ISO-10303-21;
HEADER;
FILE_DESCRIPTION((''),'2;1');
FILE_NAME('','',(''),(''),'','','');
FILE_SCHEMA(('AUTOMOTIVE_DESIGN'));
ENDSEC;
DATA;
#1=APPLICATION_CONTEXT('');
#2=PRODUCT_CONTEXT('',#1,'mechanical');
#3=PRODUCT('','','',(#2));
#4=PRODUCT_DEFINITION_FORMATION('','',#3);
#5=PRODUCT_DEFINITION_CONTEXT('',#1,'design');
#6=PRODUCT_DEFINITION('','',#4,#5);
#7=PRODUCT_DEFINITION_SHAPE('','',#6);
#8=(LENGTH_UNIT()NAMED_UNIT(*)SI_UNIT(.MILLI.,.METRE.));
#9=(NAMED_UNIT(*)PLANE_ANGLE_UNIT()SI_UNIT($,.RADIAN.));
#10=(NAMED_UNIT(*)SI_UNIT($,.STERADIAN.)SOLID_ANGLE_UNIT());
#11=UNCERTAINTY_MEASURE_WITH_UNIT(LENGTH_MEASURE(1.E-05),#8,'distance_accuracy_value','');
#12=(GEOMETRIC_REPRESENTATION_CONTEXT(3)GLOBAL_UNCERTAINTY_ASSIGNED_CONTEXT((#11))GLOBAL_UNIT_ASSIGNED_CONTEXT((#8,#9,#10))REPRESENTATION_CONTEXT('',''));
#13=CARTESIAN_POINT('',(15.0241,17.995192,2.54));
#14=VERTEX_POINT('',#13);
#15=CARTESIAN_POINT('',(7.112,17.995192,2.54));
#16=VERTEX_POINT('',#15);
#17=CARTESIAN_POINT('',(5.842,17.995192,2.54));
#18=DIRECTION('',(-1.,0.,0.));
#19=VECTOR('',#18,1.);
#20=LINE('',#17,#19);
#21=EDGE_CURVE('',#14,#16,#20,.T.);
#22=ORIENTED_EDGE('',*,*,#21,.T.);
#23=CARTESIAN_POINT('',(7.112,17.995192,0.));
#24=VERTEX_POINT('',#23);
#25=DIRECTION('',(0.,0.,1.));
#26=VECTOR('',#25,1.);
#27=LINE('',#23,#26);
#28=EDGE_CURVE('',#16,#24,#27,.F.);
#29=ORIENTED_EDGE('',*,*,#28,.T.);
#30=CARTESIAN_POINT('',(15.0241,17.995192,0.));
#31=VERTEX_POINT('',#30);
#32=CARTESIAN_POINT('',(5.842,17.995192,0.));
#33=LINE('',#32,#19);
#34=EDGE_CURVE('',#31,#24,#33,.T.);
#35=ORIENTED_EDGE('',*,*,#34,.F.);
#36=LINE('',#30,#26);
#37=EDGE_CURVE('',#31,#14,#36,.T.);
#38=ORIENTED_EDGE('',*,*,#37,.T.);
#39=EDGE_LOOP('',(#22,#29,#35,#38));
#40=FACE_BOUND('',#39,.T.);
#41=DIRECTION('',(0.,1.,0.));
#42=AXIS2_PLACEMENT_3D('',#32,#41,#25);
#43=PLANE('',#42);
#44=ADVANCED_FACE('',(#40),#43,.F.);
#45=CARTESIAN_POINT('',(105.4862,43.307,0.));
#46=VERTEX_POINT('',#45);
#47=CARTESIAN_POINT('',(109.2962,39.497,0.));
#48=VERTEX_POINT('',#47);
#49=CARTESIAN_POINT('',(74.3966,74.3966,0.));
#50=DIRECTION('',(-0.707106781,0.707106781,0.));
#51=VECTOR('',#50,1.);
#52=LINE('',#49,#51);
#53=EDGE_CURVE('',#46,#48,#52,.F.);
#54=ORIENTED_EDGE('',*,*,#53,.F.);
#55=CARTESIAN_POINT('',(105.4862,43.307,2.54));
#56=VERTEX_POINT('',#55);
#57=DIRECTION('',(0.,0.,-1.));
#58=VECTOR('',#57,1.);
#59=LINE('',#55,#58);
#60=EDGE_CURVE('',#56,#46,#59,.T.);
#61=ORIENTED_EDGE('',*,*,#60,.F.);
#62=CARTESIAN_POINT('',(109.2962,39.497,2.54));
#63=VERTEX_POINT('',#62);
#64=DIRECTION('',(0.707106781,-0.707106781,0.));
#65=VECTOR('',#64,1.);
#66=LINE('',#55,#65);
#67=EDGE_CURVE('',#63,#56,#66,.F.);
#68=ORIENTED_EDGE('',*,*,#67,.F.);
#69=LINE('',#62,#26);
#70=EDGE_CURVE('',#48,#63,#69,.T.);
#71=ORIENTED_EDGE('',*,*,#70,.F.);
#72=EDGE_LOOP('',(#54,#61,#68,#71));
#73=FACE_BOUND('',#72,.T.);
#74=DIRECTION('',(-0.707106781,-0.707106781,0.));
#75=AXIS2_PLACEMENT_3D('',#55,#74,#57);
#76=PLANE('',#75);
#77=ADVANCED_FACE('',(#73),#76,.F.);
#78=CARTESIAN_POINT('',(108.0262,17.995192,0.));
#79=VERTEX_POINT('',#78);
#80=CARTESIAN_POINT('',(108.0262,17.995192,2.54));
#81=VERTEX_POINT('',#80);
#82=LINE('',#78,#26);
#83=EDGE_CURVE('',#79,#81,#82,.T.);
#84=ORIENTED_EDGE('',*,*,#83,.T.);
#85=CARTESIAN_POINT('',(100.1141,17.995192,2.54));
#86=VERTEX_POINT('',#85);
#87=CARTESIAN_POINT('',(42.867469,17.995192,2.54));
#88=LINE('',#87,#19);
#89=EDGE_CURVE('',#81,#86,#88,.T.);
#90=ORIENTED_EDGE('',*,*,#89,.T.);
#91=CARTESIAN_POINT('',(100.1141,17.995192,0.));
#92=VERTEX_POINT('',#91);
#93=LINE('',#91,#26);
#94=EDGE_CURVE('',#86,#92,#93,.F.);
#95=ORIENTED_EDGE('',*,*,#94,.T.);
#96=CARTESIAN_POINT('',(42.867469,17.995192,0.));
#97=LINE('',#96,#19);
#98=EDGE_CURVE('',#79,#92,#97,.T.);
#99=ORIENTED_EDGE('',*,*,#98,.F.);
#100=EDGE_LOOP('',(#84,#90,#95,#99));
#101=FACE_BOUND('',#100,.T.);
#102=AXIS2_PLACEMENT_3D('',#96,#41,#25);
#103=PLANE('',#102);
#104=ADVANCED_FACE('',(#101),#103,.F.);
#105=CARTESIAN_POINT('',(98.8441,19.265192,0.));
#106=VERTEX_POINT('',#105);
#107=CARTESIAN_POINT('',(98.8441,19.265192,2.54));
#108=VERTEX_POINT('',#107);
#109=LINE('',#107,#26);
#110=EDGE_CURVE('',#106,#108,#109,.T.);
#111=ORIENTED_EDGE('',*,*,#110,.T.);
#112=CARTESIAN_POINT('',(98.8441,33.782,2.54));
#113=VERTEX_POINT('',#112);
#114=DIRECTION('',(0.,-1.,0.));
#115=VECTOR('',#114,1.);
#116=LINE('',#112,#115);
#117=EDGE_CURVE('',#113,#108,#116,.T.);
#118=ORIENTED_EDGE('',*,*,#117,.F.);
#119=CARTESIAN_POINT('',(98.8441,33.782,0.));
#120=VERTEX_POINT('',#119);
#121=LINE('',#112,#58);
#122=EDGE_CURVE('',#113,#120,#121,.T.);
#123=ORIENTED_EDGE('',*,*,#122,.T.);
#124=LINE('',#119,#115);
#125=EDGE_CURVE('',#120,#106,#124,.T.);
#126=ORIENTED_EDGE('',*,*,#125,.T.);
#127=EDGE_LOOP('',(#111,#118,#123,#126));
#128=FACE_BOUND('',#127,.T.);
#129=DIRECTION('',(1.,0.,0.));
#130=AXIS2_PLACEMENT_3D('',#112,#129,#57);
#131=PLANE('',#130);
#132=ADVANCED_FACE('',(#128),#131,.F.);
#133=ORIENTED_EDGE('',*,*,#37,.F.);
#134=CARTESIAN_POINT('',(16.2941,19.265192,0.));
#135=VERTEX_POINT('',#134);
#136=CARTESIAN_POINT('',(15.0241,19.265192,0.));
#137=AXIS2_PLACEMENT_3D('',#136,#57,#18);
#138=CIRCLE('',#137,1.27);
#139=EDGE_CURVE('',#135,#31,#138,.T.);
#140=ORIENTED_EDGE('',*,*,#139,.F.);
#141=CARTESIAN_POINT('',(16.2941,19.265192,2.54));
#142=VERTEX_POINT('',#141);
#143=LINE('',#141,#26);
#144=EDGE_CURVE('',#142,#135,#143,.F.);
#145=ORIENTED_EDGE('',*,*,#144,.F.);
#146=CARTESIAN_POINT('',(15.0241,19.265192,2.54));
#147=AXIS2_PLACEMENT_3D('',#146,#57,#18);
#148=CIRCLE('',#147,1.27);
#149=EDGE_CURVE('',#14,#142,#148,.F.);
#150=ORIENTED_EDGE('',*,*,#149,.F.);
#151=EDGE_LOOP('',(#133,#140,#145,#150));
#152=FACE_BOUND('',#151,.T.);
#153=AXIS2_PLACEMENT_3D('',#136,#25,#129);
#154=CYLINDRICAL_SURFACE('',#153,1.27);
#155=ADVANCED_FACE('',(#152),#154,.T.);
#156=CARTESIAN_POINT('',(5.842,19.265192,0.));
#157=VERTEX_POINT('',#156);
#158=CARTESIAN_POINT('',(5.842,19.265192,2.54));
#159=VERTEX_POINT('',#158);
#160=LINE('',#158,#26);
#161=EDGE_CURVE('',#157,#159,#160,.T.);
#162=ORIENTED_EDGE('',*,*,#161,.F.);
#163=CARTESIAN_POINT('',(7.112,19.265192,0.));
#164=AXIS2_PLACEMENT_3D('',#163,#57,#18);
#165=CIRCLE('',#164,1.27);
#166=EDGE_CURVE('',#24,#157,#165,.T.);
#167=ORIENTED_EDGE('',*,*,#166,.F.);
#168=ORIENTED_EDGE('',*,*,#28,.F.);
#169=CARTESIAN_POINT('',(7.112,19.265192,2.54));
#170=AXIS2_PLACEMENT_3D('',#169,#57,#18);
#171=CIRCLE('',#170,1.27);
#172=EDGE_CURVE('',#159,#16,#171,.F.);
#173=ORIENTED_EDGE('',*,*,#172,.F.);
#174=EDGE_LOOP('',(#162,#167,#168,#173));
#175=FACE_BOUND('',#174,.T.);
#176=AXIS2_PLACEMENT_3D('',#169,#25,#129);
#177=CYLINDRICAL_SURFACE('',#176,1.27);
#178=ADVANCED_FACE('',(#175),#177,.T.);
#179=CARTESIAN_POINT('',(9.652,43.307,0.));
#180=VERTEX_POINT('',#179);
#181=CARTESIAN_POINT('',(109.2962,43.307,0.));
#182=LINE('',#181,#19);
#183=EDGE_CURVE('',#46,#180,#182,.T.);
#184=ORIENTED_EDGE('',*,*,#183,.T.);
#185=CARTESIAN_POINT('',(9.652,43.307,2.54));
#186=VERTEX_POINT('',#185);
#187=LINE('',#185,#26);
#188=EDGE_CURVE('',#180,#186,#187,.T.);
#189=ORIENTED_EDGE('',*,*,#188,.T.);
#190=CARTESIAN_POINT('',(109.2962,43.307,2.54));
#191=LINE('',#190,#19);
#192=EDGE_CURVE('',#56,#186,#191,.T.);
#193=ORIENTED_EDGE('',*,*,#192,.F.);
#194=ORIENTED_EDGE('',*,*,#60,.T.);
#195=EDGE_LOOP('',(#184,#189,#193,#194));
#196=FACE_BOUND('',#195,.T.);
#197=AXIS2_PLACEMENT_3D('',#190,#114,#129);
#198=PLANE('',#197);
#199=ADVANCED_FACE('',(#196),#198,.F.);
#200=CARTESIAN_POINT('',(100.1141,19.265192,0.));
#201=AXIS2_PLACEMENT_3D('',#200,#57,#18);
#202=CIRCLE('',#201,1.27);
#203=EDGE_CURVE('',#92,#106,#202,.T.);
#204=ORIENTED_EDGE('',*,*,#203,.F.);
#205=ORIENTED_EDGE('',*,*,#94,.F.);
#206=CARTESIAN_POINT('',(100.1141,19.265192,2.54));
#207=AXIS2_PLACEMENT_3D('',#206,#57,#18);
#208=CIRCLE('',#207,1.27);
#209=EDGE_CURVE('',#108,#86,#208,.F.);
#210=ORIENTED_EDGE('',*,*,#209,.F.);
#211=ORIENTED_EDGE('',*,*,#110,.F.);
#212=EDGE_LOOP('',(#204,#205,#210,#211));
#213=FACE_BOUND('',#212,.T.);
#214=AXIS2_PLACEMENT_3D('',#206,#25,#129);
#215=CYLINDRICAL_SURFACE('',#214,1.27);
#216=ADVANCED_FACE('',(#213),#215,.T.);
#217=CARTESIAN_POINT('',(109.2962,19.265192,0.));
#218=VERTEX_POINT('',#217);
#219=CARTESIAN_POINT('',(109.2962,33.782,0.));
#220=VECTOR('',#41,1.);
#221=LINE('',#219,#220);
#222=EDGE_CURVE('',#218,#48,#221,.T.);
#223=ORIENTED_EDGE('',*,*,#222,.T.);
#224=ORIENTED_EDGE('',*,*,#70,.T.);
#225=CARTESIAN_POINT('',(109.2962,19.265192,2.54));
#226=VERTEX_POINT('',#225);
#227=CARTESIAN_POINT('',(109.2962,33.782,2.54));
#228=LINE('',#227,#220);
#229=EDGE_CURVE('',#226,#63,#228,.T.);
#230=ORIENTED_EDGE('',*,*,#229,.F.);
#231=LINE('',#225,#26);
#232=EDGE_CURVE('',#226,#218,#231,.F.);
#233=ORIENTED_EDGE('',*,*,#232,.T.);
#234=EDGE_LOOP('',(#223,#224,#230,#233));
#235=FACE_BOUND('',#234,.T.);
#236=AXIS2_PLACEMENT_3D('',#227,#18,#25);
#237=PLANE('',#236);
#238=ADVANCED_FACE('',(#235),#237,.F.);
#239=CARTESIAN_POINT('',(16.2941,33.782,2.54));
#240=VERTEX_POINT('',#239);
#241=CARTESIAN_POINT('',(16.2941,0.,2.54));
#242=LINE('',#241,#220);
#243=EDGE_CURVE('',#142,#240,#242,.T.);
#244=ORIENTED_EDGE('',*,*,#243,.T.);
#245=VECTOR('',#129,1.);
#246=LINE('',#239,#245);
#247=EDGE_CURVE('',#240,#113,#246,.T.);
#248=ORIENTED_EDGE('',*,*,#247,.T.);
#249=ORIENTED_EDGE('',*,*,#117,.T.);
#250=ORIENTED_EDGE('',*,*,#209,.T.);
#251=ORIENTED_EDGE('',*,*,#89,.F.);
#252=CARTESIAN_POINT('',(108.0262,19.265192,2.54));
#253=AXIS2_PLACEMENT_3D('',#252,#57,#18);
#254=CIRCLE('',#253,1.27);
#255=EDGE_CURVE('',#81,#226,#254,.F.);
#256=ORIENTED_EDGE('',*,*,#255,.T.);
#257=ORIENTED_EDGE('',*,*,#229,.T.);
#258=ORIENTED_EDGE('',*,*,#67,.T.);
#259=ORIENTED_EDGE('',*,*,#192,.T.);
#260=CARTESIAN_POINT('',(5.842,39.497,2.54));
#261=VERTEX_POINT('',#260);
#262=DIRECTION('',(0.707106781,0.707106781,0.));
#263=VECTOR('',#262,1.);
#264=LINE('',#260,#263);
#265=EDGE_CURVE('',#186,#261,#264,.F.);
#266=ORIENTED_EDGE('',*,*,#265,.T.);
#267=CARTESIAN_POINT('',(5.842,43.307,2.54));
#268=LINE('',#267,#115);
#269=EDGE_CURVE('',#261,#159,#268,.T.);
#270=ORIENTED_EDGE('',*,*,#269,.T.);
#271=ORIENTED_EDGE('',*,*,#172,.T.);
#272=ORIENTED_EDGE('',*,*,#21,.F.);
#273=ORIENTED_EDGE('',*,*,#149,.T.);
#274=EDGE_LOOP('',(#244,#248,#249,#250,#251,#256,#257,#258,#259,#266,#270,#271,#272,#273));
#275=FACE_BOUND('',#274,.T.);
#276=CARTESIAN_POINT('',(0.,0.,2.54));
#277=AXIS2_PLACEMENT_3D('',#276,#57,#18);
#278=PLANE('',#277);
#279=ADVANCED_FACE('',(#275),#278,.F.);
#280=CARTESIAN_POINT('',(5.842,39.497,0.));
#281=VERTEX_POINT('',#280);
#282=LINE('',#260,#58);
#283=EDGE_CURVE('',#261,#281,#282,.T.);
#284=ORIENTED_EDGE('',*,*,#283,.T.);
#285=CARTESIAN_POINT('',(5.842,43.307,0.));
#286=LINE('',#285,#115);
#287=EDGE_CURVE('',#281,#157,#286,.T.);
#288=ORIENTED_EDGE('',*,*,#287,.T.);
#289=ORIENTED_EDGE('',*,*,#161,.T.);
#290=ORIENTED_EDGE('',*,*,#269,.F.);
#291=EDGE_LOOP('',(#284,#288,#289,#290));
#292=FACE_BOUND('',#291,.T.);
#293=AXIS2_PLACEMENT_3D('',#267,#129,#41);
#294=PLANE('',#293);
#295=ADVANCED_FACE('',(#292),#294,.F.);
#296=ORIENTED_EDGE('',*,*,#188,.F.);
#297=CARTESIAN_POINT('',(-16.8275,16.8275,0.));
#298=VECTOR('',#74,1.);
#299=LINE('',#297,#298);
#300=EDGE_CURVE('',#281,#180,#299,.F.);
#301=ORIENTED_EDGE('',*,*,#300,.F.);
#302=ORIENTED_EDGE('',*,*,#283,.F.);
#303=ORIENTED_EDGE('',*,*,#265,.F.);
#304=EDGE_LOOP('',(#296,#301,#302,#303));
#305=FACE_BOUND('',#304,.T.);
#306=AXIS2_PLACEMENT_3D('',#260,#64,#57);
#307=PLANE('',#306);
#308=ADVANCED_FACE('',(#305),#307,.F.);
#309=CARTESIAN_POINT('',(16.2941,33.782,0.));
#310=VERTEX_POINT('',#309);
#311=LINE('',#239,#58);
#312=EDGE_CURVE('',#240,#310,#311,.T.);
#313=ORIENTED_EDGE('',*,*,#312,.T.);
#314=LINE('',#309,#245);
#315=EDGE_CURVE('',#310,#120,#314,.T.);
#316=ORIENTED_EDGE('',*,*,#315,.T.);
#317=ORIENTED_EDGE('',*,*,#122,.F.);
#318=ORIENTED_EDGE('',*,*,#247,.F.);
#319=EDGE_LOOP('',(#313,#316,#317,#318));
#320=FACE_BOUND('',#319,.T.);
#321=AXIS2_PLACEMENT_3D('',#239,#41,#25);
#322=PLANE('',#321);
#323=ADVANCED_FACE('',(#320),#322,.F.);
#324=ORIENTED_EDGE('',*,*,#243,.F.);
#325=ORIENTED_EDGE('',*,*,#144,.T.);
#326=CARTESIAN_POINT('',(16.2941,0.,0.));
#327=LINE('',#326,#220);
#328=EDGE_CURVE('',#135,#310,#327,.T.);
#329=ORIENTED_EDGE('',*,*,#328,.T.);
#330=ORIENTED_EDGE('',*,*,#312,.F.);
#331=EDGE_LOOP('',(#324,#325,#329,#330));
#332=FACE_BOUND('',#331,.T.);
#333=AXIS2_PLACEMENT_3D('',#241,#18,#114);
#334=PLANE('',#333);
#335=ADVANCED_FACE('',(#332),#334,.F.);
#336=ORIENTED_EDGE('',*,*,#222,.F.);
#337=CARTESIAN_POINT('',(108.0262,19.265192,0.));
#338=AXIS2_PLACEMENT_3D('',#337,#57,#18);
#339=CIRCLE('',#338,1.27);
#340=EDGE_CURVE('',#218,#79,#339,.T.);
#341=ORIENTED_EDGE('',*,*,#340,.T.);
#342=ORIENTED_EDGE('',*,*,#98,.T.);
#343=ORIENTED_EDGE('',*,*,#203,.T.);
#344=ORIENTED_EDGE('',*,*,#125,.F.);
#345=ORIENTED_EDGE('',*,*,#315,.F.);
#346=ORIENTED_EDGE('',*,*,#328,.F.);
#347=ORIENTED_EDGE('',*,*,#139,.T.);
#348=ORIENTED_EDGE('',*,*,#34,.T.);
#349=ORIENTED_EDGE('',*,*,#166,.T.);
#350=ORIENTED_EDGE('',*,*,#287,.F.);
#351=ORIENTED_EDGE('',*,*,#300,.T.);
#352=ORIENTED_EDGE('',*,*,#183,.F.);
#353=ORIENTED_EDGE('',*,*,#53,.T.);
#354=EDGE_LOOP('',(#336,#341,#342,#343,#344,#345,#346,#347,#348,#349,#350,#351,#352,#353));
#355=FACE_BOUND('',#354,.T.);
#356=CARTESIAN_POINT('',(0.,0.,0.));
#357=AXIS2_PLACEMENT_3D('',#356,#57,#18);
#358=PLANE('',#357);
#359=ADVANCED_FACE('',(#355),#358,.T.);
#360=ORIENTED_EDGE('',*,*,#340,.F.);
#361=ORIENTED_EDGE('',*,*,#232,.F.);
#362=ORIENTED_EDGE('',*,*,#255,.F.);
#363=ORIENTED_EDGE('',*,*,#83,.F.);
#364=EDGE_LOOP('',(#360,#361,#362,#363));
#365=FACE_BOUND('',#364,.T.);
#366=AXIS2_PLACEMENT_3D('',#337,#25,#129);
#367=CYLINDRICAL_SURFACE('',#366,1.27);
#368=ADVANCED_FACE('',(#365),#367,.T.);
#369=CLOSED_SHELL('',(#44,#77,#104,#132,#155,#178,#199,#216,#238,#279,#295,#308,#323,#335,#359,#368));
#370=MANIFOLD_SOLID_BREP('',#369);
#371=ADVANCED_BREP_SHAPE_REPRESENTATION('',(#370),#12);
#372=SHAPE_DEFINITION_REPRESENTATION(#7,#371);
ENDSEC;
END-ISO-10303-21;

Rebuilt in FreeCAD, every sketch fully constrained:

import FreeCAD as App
import Part
import Sketcher
from FreeCAD import Vector
Q = App.Units.Quantity


def edges_at(feature, points):
    """Names of the edges that pass closest to the given points."""
    edges = feature.Shape.Edges
    near = lambda p: min(range(len(edges)), key=lambda i: edges[i].distToShape(Part.Vertex(*p))[0])
    return sorted({f"Edge{near(p) + 1}" for p in points})


def add_polygon(sketch, points):
    """Adds a closed chain of lines whose ends are joined by coincident constraints."""
    first, n = sketch.GeometryCount, len(points)
    for a, b in zip(points, points[1:] + points[:1]):
        sketch.addGeometry(Part.LineSegment(App.Vector(*a, 0), App.Vector(*b, 0)), False)
    for i in range(n):
        sketch.addConstraint(Sketcher.Constraint("Coincident", first + i, 2, first + (i + 1) % n, 1))

doc = App.newDocument("Part")
params = doc.addObject("Spreadsheet::Sheet", "Params")
for row, (alias, value) in enumerate([
    ("sketch1_width", "3.25 in"),
    ("sketch1_width2", "0.23 in"),
    ("sketch1_height", "1.33 in"),
    ("sketch1_height2", "0.11 in"),
    ("sketch1_width3", "4.073 in"),
    ("pad1_length", "0.1 in"),
    ("chamfer_size", "0.15 in"),
    ("sketch2_width", "0.23 in"),
    ("sketch3_width", "0.23 in"),
    ("fillet_radius", "0.05 in"),
], start=1):
    params.set(f"A{row}", alias)
    params.set(f"B{row}", "=" + value)
    params.setAlias(f"B{row}", alias)

body = doc.addObject("PartDesign::Body", "Body")

sketch1 = body.newObject("Sketcher::SketchObject", "Sketch")
sketch1.AttachmentSupport = (doc.getObject("XY_Plane"), [""])
sketch1.MapMode = "FlatFace"
add_polygon(sketch1, [(5.8, 0), (16.3, 0), (16.3, 33.8), (98.8, 33.8), (98.8, 0), (109.3, 0), (109.3, 2.8), (115.1, 2.8), (115.1, 33.8), (109.3, 33.8), (109.3, 43.3), (5.8, 43.3), (5.8, 33.8), (0, 33.8), (0, 2.8), (5.8, 2.8)])
sketch1.addConstraint(Sketcher.Constraint("Horizontal", 0))
sketch1.addConstraint(Sketcher.Constraint("Vertical", 1))
sketch1.addConstraint(Sketcher.Constraint("Horizontal", 2))
sketch1.addConstraint(Sketcher.Constraint("Vertical", 3))
sketch1.addConstraint(Sketcher.Constraint("Horizontal", 4))
sketch1.addConstraint(Sketcher.Constraint("Vertical", 5))
sketch1.addConstraint(Sketcher.Constraint("Horizontal", 6))
sketch1.addConstraint(Sketcher.Constraint("Vertical", 7))
sketch1.addConstraint(Sketcher.Constraint("Horizontal", 8))
sketch1.addConstraint(Sketcher.Constraint("Vertical", 9))
sketch1.addConstraint(Sketcher.Constraint("Horizontal", 10))
sketch1.addConstraint(Sketcher.Constraint("Vertical", 11))
sketch1.addConstraint(Sketcher.Constraint("Horizontal", 12))
sketch1.addConstraint(Sketcher.Constraint("Vertical", 13))
sketch1.addConstraint(Sketcher.Constraint("Horizontal", 14))
sketch1.addConstraint(Sketcher.Constraint("Vertical", 15))
sketch1.addConstraint(Sketcher.Constraint("PointOnObject", 0, 2, -1))
sketch1.addConstraint(Sketcher.Constraint("PointOnObject", 3, 2, -1))
sketch1.addConstraint(Sketcher.Constraint("PointOnObject", 12, 2, -2))
sketch1.addConstraint(Sketcher.Constraint("Horizontal", 2, 2, 7, 2))
sketch1.addConstraint(Sketcher.Constraint("Horizontal", 8, 2, 11, 2))
sketch1.addConstraint(Sketcher.Constraint("Horizontal", 6, 2, 13, 2))
sketch1.addConstraint(Sketcher.Constraint("Vertical", 5, 2, 8, 2))
sketch1.addConstraint(Sketcher.Constraint("Vertical", 11, 2, 14, 2))
sketch1.addConstraint(Sketcher.Constraint("Equal", 0, 4))
sketch1.addConstraint(Sketcher.Constraint("Equal", 8, 12))
sketch1.addConstraint(Sketcher.Constraint("DistanceX", 2, 1, 2, 2, Q("3.25 in")))
sketch1.addConstraint(Sketcher.Constraint("DistanceX", 6, 1, 6, 2, Q("0.23 in")))
sketch1.addConstraint(Sketcher.Constraint("DistanceY", 1, 1, 1, 2, Q("1.33 in")))
sketch1.addConstraint(Sketcher.Constraint("DistanceY", 5, 1, 5, 2, Q("0.11 in")))
sketch1.addConstraint(Sketcher.Constraint("DistanceX", 10, 2, 10, 1, Q("4.073 in")))
sketch1.addConstraint(Sketcher.Constraint("DistanceY", 9, 1, 9, 2, Q("0.375 in")))
sketch1.setExpression("Constraints[42]", "Params.sketch1_width")
sketch1.setExpression("Constraints[43]", "Params.sketch1_width2")
sketch1.setExpression("Constraints[44]", "Params.sketch1_height")
sketch1.setExpression("Constraints[45]", "Params.sketch1_height2")
sketch1.setExpression("Constraints[46]", "Params.sketch1_width3")
pad1 = body.newObject("PartDesign::Pad", "Pad")
pad1.Profile = sketch1
pad1.setExpression("Length", "Params.pad1_length")
doc.recompute()

chamfer = body.newObject("PartDesign::Chamfer", "Chamfer")
chamfer.Base = (pad1, edges_at(pad1, [(5.842, 43.307, 1.27), (109.296, 43.307, 1.27)]))
chamfer.setExpression("Size", "Params.chamfer_size")

sketch2 = body.newObject("Sketcher::SketchObject", "Sketch001")
sketch2.AttachmentSupport = (doc.getObject("XY_Plane"), [""])
sketch2.MapMode = "FlatFace"
sketch2.AttachmentOffset = App.Placement(Vector(0, 0, 0.1 * 25.4), App.Rotation())
add_polygon(sketch2, [(6, 34), (0, 34), (0, -3), (16, -3), (16, 18), (6, 18)])
sketch2.addConstraint(Sketcher.Constraint("Horizontal", 0))
sketch2.addConstraint(Sketcher.Constraint("Vertical", 1))
sketch2.addConstraint(Sketcher.Constraint("Horizontal", 2))
sketch2.addConstraint(Sketcher.Constraint("Vertical", 3))
sketch2.addConstraint(Sketcher.Constraint("Horizontal", 4))
sketch2.addConstraint(Sketcher.Constraint("Vertical", 5))
sketch2.addConstraint(Sketcher.Constraint("PointOnObject", 0, 2, -2))
sketch2.addConstraint(Sketcher.Constraint("DistanceX", 0, 2, 0, 1, Q("0.23 in")))
sketch2.addConstraint(Sketcher.Constraint("DistanceY", -1, 1, 0, 2, Q("1.33 in")))
sketch2.addConstraint(Sketcher.Constraint("DistanceX", 2, 1, 2, 2, Q("0.6415 in")))
sketch2.addConstraint(Sketcher.Constraint("DistanceY", 1, 2, 1, 1, 36.880793))
sketch2.addConstraint(Sketcher.Constraint("DistanceY", 3, 1, 3, 2, 21.093985))
sketch2.setExpression("Constraints[13]", "Params.sketch2_width")
pocket1 = body.newObject("PartDesign::Pocket", "Pocket")
pocket1.Profile = sketch2
pocket1.Type = "ThroughAll"

sketch3 = body.newObject("Sketcher::SketchObject", "Sketch002")
sketch3.AttachmentSupport = (doc.getObject("XY_Plane"), [""])
sketch3.MapMode = "FlatFace"
sketch3.AttachmentOffset = App.Placement(Vector(0, 0, 0.1 * 25.4), App.Rotation())
add_polygon(sketch3, [(115, 34), (109, 34), (109, 18), (43, 18), (99, 0), (115, -2)])
sketch3.addConstraint(Sketcher.Constraint("Horizontal", 0))
sketch3.addConstraint(Sketcher.Constraint("Vertical", 1))
sketch3.addConstraint(Sketcher.Constraint("Horizontal", 2))
sketch3.addConstraint(Sketcher.Constraint("Vertical", 5))
sketch3.addConstraint(Sketcher.Constraint("PointOnObject", 3, 2, -1))
sketch3.addConstraint(Sketcher.Constraint("DistanceX", 0, 2, 0, 1, Q("0.23 in")))
sketch3.addConstraint(Sketcher.Constraint("DistanceY", -1, 1, 0, 2, Q("1.33 in")))
sketch3.addConstraint(Sketcher.Constraint("DistanceX", -1, 1, 0, 2, Q("4.303 in")))
sketch3.addConstraint(Sketcher.Constraint("DistanceX", -1, 1, 3, 2, Q("3.8915 in")))
sketch3.addConstraint(Sketcher.Constraint("DistanceX", 2, 2, 2, 1, 66.428731))
sketch3.addConstraint(Sketcher.Constraint("DistanceY", 5, 1, 5, 2, 36.006431))
sketch3.addConstraint(Sketcher.Constraint("DistanceY", 1, 2, 1, 1, 15.786808))
sketch3.setExpression("Constraints[11]", "Params.sketch3_width")
pocket2 = body.newObject("PartDesign::Pocket", "Pocket001")
pocket2.Profile = sketch3
pocket2.Type = "ThroughAll"
doc.recompute()

fillet = body.newObject("PartDesign::Fillet", "Fillet")
fillet.Base = (pocket2, edges_at(pocket2, [
    (16.294, 17.995, 1.27),
    (5.842, 17.995, 1.27),
    (98.844, 17.995, 1.27),
    (109.296, 17.995, 1.27),
]))
fillet.setExpression("Radius", "Params.fillet_radius")

doc.recompute()
